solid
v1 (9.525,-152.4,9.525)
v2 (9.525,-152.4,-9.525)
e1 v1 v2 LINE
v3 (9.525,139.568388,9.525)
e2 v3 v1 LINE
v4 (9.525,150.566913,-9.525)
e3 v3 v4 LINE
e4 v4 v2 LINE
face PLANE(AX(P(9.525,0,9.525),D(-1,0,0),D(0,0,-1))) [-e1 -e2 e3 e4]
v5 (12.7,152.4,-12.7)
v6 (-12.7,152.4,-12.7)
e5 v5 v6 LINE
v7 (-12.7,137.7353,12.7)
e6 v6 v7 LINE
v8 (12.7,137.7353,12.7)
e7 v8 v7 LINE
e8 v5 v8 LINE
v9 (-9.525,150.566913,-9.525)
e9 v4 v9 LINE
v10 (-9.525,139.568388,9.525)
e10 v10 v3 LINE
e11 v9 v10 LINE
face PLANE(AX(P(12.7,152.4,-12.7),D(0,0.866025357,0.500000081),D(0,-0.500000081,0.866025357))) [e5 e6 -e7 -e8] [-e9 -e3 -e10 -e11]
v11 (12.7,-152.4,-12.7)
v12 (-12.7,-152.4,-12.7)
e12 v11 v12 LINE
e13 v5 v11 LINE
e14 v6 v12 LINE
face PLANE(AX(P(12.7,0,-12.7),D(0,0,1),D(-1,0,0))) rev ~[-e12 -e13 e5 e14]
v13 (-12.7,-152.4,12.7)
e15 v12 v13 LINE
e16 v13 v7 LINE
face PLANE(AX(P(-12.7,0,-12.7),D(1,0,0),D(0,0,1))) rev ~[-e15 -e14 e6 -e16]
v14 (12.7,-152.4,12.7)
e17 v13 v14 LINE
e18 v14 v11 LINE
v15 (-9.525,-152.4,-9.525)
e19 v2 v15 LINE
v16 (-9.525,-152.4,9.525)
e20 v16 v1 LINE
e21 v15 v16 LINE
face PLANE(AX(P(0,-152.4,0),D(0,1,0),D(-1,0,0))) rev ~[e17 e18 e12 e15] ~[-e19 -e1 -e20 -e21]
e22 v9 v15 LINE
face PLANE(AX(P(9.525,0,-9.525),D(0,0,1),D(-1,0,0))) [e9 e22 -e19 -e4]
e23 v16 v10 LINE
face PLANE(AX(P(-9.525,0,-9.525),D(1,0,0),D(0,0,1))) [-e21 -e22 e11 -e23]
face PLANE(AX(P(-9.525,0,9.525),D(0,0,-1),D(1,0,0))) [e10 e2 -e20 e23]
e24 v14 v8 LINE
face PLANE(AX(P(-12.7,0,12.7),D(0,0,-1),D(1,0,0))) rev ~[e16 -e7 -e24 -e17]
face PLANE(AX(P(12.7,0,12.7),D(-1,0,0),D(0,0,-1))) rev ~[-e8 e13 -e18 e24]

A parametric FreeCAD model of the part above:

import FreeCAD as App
import Part
import Sketcher
from FreeCAD import Vector
Q = App.Units.Quantity

doc = App.newDocument("Part")
params = doc.addObject("Spreadsheet::Sheet", "Params")
for row, (alias, value) in enumerate([
    ("sketch1_width", "1 in"),
    ("pad1_length", "12 in"),
    ("sketch2_height", "1 in"),
], start=1):
    params.set(f"A{row}", alias)
    params.set(f"B{row}", "=" + value)
    params.setAlias(f"B{row}", alias)

body = doc.addObject("PartDesign::Body", "Body")

# Sketch on XZ plane
sketch1 = body.newObject("Sketcher::SketchObject", "Sketch")
sketch1.AttachmentSupport = (doc.getObject("XZ_Plane"), [""])
sketch1.MapMode = "FlatFace"
sketch1.addGeometry([
    Part.LineSegment(Vector(-13, -13, 0), Vector(-13, 13, 0)),  # 0
    Part.LineSegment(Vector(-13, 13, 0), Vector(13, 13, 0)),  # 1
    Part.LineSegment(Vector(13, 13, 0), Vector(13, -13, 0)),  # 2
    Part.LineSegment(Vector(13, -13, 0), Vector(-13, -13, 0)),  # 3
    Part.LineSegment(Vector(10, 10, 0), Vector(-10, 10, 0)),  # 4
    Part.LineSegment(Vector(-10, 10, 0), Vector(-10, -10, 0)),  # 5
    Part.LineSegment(Vector(-10, -10, 0), Vector(10, -10, 0)),  # 6
    Part.LineSegment(Vector(10, -10, 0), Vector(10, 10, 0)),  # 7
], False)
sketch1.addConstraint([
    Sketcher.Constraint("Coincident", 0, 2, 1, 1),
    Sketcher.Constraint("Coincident", 1, 2, 2, 1),
    Sketcher.Constraint("Coincident", 2, 2, 3, 1),
    Sketcher.Constraint("Coincident", 3, 2, 0, 1),
    Sketcher.Constraint("Coincident", 4, 2, 5, 1),
    Sketcher.Constraint("Coincident", 5, 2, 6, 1),
    Sketcher.Constraint("Coincident", 6, 2, 7, 1),
    Sketcher.Constraint("Coincident", 7, 2, 4, 1),
    Sketcher.Constraint("Vertical", 0),
    Sketcher.Constraint("Horizontal", 1),
    Sketcher.Constraint("Vertical", 2),
    Sketcher.Constraint("Horizontal", 3),
    Sketcher.Constraint("Horizontal", 4),
    Sketcher.Constraint("Vertical", 5),
    Sketcher.Constraint("Horizontal", 6),
    Sketcher.Constraint("Vertical", 7),
    Sketcher.Constraint("Symmetric", 0, 2, 2, 2, -1, 1),
    Sketcher.Constraint("Symmetric", 4, 2, 6, 2, -1, 1),
    Sketcher.Constraint("Equal", 3, 0),
    Sketcher.Constraint("Equal", 6, 5),
    Sketcher.Constraint("DistanceX", 1, 1, 1, 2, Q("1 in")),
    Sketcher.Constraint("DistanceX", 0, 2, 4, 2, Q("0.125 in")),
])
sketch1.setExpression("Constraints[20]", "Params.sketch1_width")
pad1 = body.newObject("PartDesign::Pad", "Pad")
pad1.Profile = sketch1
pad1.setExpression("Length", "Params.pad1_length")
pad1.Midplane = True

# Sketch on YZ plane
sketch2 = body.newObject("Sketcher::SketchObject", "Sketch001")
sketch2.AttachmentSupport = (doc.getObject("YZ_Plane"), [""])
sketch2.MapMode = "FlatFace"
sketch2.AttachmentOffset = App.Placement(Vector(0, 0, 0.5 * 25.4), App.Rotation())
sketch2.addGeometry([
    Part.LineSegment(Vector(138, 13, 0), Vector(152, -13, 0)),
    Part.LineSegment(Vector(152, -13, 0), Vector(152, 13, 0)),
    Part.LineSegment(Vector(152, 13, 0), Vector(138, 13, 0)),
], False)
sketch2.addConstraint([
    Sketcher.Constraint("Coincident", 0, 2, 1, 1),
    Sketcher.Constraint("Coincident", 1, 2, 2, 1),
    Sketcher.Constraint("Coincident", 2, 2, 0, 1),
    Sketcher.Constraint("Vertical", 1),
    Sketcher.Constraint("Horizontal", 2),
    Sketcher.Constraint("DistanceY", 1, 1, 1, 2, Q("1 in")),
    Sketcher.Constraint("DistanceX", -1, 1, 0, 2, Q("6 in")),
    Sketcher.Constraint("Angle", 0, Q("-60 deg")),
    Sketcher.Constraint("DistanceY", 0, 2, -1, 1, Q("0.5 in")),
])
sketch2.setExpression("Constraints[5]", "Params.sketch2_height")
pocket1 = body.newObject("PartDesign::Pocket", "Pocket")
pocket1.Profile = sketch2
pocket1.Type = "ThroughAll"

doc.recompute()
